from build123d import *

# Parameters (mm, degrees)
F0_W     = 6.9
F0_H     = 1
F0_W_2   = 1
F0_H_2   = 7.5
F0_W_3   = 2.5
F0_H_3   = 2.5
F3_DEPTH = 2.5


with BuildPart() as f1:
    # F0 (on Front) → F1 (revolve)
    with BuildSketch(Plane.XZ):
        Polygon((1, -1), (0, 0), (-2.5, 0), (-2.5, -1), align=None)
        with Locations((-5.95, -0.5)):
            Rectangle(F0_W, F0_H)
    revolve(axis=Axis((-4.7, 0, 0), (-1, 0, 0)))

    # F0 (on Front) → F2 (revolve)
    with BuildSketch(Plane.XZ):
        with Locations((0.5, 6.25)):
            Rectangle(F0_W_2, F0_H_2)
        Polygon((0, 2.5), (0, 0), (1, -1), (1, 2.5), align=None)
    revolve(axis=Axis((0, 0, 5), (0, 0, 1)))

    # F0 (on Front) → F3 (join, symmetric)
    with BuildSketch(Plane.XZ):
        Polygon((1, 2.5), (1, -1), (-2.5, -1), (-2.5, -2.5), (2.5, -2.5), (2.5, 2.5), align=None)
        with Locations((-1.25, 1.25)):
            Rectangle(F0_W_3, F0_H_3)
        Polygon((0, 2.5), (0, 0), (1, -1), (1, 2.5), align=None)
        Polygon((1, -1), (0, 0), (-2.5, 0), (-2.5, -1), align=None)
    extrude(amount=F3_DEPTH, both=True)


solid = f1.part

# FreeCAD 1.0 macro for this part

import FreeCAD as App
import Part
import Sketcher
Q = App.Units.Quantity


def add_polygon(sketch, points):
    """Adds a closed chain of lines whose ends are joined by coincident constraints."""
    first, n = sketch.GeometryCount, len(points)
    for a, b in zip(points, points[1:] + points[:1]):
        sketch.addGeometry(Part.LineSegment(App.Vector(*a, 0), App.Vector(*b, 0)), False)
    for i in range(n):
        sketch.addConstraint(Sketcher.Constraint("Coincident", first + i, 2, first + (i + 1) % n, 1))

doc = App.newDocument("Part")
body = doc.addObject("PartDesign::Body", "Body")

# Sketch on XZ plane
sketch1 = doc.addObject("Sketcher::SketchObject", "Sketch")
body.addObject(sketch1)
sketch1.AttachmentSupport = (doc.XZ_Plane, [""])
sketch1.MapMode = "FlatFace"
add_polygon(sketch1, [(1, -1), (0, 0), (-9.4, 0), (-9.4, -1)])  # lines 0-3
sketch1.addConstraint([
    Sketcher.Constraint("Horizontal", 1),
    Sketcher.Constraint("Vertical", 2),
    Sketcher.Constraint("Horizontal", 3),
    Sketcher.Constraint("Coincident", 0, 2, -1, 1),
    Sketcher.Constraint("DistanceY", 2, 2, 2, 1, 1.0),
    Sketcher.Constraint("Angle", 0, Q("135 deg")),
    Sketcher.Constraint("DistanceX", 1, 2, 1, 1, 9.4),
])
revolution = doc.addObject("PartDesign::Revolution", "Revolution")
body.addObject(revolution)
revolution.Profile = sketch1
revolution.ReferenceAxis = (sketch1, ["H_Axis"])
revolution.Angle = 360

# Sketch on XZ plane
sketch2 = doc.addObject("Sketcher::SketchObject", "Sketch001")
body.addObject(sketch2)
sketch2.AttachmentSupport = (doc.XZ_Plane, [""])
sketch2.MapMode = "FlatFace"
add_polygon(sketch2, [(0, 10), (0, 0), (1, -1), (1, 10)])  # lines 0-3
sketch2.addConstraint([
    Sketcher.Constraint("Vertical", 0),
    Sketcher.Constraint("Vertical", 2),
    Sketcher.Constraint("Horizontal", 3),
    Sketcher.Constraint("Coincident", 0, 2, -1, 1),
    Sketcher.Constraint("DistanceX", 3, 2, 3, 1, 1.0),
    Sketcher.Constraint("DistanceY", 0, 2, 0, 1, 10.0),
    Sketcher.Constraint("DistanceY", 2, 1, 2, 2, 11.0),
])
revolution2 = doc.addObject("PartDesign::Revolution", "Revolution001")
body.addObject(revolution2)
revolution2.Profile = sketch2
revolution2.ReferenceAxis = (sketch2, ["V_Axis"])
revolution2.Angle = 360

# Sketch on XZ plane
sketch3 = doc.addObject("Sketcher::SketchObject", "Sketch002")
body.addObject(sketch3)
sketch3.AttachmentSupport = (doc.XZ_Plane, [""])
sketch3.MapMode = "FlatFace"
add_polygon(sketch3, [(-2, -2), (2, -2), (2, 2), (-2, 2)])  # lines 0-3
sketch3.addConstraint([
    Sketcher.Constraint("Horizontal", 0),
    Sketcher.Constraint("Vertical", 1),
    Sketcher.Constraint("Horizontal", 2),
    Sketcher.Constraint("Vertical", 3),
    Sketcher.Constraint("Symmetric", 0, 2, 2, 2, -1, 1),
    Sketcher.Constraint("Equal", 2, 1),
    Sketcher.Constraint("DistanceX", 0, 1, 0, 2, 5.0),
])
pad1 = doc.addObject("PartDesign::Pad", "Pad")
body.addObject(pad1)
pad1.Profile = sketch3
pad1.Length = 5
pad1.Midplane = True

doc.recompute()
